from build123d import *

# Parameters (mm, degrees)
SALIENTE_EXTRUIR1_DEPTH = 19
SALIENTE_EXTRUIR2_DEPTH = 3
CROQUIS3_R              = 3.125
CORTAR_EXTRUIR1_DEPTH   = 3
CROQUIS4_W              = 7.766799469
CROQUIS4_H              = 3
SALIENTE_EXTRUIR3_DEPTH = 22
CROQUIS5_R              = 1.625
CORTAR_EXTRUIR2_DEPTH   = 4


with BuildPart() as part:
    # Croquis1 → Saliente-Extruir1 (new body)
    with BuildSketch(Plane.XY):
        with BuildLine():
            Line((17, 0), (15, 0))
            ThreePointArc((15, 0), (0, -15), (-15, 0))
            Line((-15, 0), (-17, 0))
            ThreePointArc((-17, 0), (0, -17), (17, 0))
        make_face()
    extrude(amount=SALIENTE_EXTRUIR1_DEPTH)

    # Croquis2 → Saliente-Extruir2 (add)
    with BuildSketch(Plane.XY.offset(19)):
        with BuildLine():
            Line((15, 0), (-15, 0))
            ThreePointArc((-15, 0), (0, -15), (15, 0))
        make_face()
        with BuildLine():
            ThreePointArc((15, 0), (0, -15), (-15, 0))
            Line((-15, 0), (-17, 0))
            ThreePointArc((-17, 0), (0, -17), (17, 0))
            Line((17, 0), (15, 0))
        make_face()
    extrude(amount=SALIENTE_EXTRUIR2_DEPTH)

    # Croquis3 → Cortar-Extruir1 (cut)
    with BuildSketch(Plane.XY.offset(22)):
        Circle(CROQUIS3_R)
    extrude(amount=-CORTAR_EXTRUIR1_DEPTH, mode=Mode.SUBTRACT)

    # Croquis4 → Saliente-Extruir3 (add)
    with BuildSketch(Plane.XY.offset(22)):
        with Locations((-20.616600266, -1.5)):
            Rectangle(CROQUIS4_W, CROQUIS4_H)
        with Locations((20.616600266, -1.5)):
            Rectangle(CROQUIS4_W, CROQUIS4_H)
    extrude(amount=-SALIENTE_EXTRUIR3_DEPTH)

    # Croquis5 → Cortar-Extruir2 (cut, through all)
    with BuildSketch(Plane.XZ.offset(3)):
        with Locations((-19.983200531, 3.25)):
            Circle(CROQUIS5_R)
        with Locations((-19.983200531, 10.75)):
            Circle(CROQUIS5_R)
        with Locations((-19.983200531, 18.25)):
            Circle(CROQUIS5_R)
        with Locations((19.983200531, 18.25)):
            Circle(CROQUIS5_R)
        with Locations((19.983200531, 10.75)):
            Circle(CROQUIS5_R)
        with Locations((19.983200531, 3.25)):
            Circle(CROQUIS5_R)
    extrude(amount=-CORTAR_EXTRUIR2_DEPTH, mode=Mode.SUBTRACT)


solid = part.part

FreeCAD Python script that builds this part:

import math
import FreeCAD as App
import Part
import Sketcher


def add_polygon(sketch, points):
    """Adds a closed chain of lines whose ends are joined by coincident constraints."""
    first, n = sketch.GeometryCount, len(points)
    for a, b in zip(points, points[1:] + points[:1]):
        sketch.addGeometry(Part.LineSegment(App.Vector(*a, 0), App.Vector(*b, 0)), False)
    for i in range(n):
        sketch.addConstraint(Sketcher.Constraint("Coincident", first + i, 2, first + (i + 1) % n, 1))

doc = App.newDocument("Part")
body = doc.addObject("PartDesign::Body", "Body")

sketch1 = doc.addObject("Sketcher::SketchObject", "Sketch")
body.addObject(sketch1)
sketch1.AttachmentSupport = (doc.XY_Plane, [""])
sketch1.MapMode = "FlatFace"
sketch1.addGeometry([
    Part.LineSegment(App.Vector(17, 0, 0), App.Vector(15, 0, 0)),
    Part.ArcOfCircle(Part.Circle(App.Vector(0, 0, 0), App.Vector(0, 0, 1), 15), math.radians(180), math.radians(360)),
    Part.LineSegment(App.Vector(-15, 0, 0), App.Vector(-17, 0, 0)),
    Part.ArcOfCircle(Part.Circle(App.Vector(0, 0, 0), App.Vector(0, 0, 1), 17), math.radians(180), math.radians(360)),
], False)
sketch1.addConstraint([
    Sketcher.Constraint("Coincident", 0, 2, 1, 2),
    Sketcher.Constraint("Coincident", 1, 1, 2, 1),
    Sketcher.Constraint("Coincident", 2, 2, 3, 1),
    Sketcher.Constraint("Coincident", 3, 2, 0, 1),
    Sketcher.Constraint("Horizontal", 0),
    Sketcher.Constraint("Horizontal", 2),
    Sketcher.Constraint("Coincident", 1, 3, -1, 1),
    Sketcher.Constraint("Coincident", 3, 3, -1, 1),
    Sketcher.Constraint("PointOnObject", 0, 2, -1),
    Sketcher.Constraint("PointOnObject", 1, 1, -1),
    Sketcher.Constraint("Radius", 1, 15.0),
    Sketcher.Constraint("Radius", 3, 17.0),
])
pad1 = doc.addObject("PartDesign::Pad", "Pad")
body.addObject(pad1)
pad1.Profile = sketch1
pad1.Length = 19

sketch2 = doc.addObject("Sketcher::SketchObject", "Sketch001")
body.addObject(sketch2)
sketch2.AttachmentSupport = (doc.XY_Plane, [""])
sketch2.MapMode = "FlatFace"
sketch2.AttachmentOffset = App.Placement(App.Vector(0, 0, 19), App.Rotation())
sketch2.addGeometry([
    Part.ArcOfCircle(Part.Circle(App.Vector(0, 0, 0), App.Vector(0, 0, 1), 17), math.radians(180), math.radians(360)),
    Part.LineSegment(App.Vector(17, 0, 0), App.Vector(-17, 0, 0)),
], False)
sketch2.addConstraint([
    Sketcher.Constraint("Coincident", 0, 1, 1, 2),
    Sketcher.Constraint("Coincident", 1, 1, 0, 2),
    Sketcher.Constraint("Horizontal", 1),
    Sketcher.Constraint("Coincident", 0, 3, -1, 1),
    Sketcher.Constraint("PointOnObject", 0, 1, -1),
    Sketcher.Constraint("Radius", 0, 17.0),
])
pad2 = doc.addObject("PartDesign::Pad", "Pad001")
body.addObject(pad2)
pad2.Profile = sketch2
pad2.Length = 3

sketch3 = doc.addObject("Sketcher::SketchObject", "Sketch002")
body.addObject(sketch3)
sketch3.AttachmentSupport = (doc.XY_Plane, [""])
sketch3.MapMode = "FlatFace"
sketch3.AttachmentOffset = App.Placement(App.Vector(0, 0, 22), App.Rotation())
sketch3.addGeometry(Part.Circle(App.Vector(0, 0, 0), App.Vector(0, 0, 1), 3.1), False)
sketch3.addConstraint([
    Sketcher.Constraint("Coincident", 0, 3, -1, 1),
    Sketcher.Constraint("Diameter", 0, 6.25),
])
pocket1 = doc.addObject("PartDesign::Pocket", "Pocket")
body.addObject(pocket1)
pocket1.Profile = sketch3
pocket1.Length = 3

sketch4 = doc.addObject("Sketcher::SketchObject", "Sketch003")
body.addObject(sketch4)
sketch4.AttachmentSupport = (doc.XY_Plane, [""])
sketch4.MapMode = "FlatFace"
sketch4.AttachmentOffset = App.Placement(App.Vector(0, 0, 22), App.Rotation())
add_polygon(sketch4, [(-24.5, 0), (-24.5, -3), (-16.7, -3), (-16.7, 0)])
add_polygon(sketch4, [(16.7, 0), (16.7, -3), (24.5, -3), (24.5, 0)])
sketch4.addConstraint([
    Sketcher.Constraint("Vertical", 0),
    Sketcher.Constraint("Horizontal", 1),
    Sketcher.Constraint("Vertical", 2),
    Sketcher.Constraint("Horizontal", 3),
    Sketcher.Constraint("Vertical", 4),
    Sketcher.Constraint("Horizontal", 5),
    Sketcher.Constraint("Vertical", 6),
    Sketcher.Constraint("Horizontal", 7),
    Sketcher.Constraint("Symmetric", 3, 2, 6, 2, -1, 1),
    Sketcher.Constraint("Symmetric", 1, 2, 4, 2, -2),
    Sketcher.Constraint("PointOnObject", 2, 2, -1),
    Sketcher.Constraint("DistanceY", 0, 2, 0, 1, 3.0),
    Sketcher.Constraint("DistanceX", 0, 2, 5, 2, 49.0),
    Sketcher.Constraint("DistanceX", 1, 1, 1, 2, 7.766799),
])
pad3 = doc.addObject("PartDesign::Pad", "Pad002")
body.addObject(pad3)
pad3.Profile = sketch4
pad3.Length = 22
pad3.Reversed = True

sketch5 = doc.addObject("Sketcher::SketchObject", "Sketch004")
body.addObject(sketch5)
sketch5.AttachmentSupport = (doc.XZ_Plane, [""])
sketch5.MapMode = "FlatFace"
sketch5.AttachmentOffset = App.Placement(App.Vector(0, 0, 3), App.Rotation())
sketch5.addGeometry([
    Part.Circle(App.Vector(-20, 3.2, 0), App.Vector(0, 0, 1), 1.6),
    Part.Circle(App.Vector(-20, 10.8, 0), App.Vector(0, 0, 1), 1.6),
    Part.Circle(App.Vector(-20, 18.2, 0), App.Vector(0, 0, 1), 1.6),
    Part.Circle(App.Vector(20, 18.2, 0), App.Vector(0, 0, 1), 1.6),
    Part.Circle(App.Vector(20, 10.8, 0), App.Vector(0, 0, 1), 1.6),
    Part.Circle(App.Vector(20, 3.2, 0), App.Vector(0, 0, 1), 1.6),
], False)
sketch5.addConstraint([
    Sketcher.Constraint("Equal", 0, 1),
    Sketcher.Constraint("Equal", 1, 2),
    Sketcher.Constraint("Equal", 2, 3),
    Sketcher.Constraint("Equal", 3, 4),
    Sketcher.Constraint("Equal", 4, 5),
    Sketcher.Constraint("Symmetric", 2, 3, 3, 3, -2),
    Sketcher.Constraint("Symmetric", 1, 3, 4, 3, -2),
    Sketcher.Constraint("Symmetric", 0, 3, 5, 3, -2),
    Sketcher.Constraint("Vertical", 0, 3, 1, 3),
    Sketcher.Constraint("Vertical", 1, 3, 2, 3),
    Sketcher.Constraint("Diameter", 0, 3.25),
    Sketcher.Constraint("DistanceY", 0, 3, 2, 3, 15.0),
    Sketcher.Constraint("DistanceY", 0, 3, 1, 3, 7.5),
    Sketcher.Constraint("DistanceY", -1, 1, 0, 3, 3.25),
    Sketcher.Constraint("DistanceX", 0, 3, -1, 1, 19.983201),
])
pocket2 = doc.addObject("PartDesign::Pocket", "Pocket001")
body.addObject(pocket2)
pocket2.Profile = sketch5
pocket2.Type = "ThroughAll"

doc.recompute()
